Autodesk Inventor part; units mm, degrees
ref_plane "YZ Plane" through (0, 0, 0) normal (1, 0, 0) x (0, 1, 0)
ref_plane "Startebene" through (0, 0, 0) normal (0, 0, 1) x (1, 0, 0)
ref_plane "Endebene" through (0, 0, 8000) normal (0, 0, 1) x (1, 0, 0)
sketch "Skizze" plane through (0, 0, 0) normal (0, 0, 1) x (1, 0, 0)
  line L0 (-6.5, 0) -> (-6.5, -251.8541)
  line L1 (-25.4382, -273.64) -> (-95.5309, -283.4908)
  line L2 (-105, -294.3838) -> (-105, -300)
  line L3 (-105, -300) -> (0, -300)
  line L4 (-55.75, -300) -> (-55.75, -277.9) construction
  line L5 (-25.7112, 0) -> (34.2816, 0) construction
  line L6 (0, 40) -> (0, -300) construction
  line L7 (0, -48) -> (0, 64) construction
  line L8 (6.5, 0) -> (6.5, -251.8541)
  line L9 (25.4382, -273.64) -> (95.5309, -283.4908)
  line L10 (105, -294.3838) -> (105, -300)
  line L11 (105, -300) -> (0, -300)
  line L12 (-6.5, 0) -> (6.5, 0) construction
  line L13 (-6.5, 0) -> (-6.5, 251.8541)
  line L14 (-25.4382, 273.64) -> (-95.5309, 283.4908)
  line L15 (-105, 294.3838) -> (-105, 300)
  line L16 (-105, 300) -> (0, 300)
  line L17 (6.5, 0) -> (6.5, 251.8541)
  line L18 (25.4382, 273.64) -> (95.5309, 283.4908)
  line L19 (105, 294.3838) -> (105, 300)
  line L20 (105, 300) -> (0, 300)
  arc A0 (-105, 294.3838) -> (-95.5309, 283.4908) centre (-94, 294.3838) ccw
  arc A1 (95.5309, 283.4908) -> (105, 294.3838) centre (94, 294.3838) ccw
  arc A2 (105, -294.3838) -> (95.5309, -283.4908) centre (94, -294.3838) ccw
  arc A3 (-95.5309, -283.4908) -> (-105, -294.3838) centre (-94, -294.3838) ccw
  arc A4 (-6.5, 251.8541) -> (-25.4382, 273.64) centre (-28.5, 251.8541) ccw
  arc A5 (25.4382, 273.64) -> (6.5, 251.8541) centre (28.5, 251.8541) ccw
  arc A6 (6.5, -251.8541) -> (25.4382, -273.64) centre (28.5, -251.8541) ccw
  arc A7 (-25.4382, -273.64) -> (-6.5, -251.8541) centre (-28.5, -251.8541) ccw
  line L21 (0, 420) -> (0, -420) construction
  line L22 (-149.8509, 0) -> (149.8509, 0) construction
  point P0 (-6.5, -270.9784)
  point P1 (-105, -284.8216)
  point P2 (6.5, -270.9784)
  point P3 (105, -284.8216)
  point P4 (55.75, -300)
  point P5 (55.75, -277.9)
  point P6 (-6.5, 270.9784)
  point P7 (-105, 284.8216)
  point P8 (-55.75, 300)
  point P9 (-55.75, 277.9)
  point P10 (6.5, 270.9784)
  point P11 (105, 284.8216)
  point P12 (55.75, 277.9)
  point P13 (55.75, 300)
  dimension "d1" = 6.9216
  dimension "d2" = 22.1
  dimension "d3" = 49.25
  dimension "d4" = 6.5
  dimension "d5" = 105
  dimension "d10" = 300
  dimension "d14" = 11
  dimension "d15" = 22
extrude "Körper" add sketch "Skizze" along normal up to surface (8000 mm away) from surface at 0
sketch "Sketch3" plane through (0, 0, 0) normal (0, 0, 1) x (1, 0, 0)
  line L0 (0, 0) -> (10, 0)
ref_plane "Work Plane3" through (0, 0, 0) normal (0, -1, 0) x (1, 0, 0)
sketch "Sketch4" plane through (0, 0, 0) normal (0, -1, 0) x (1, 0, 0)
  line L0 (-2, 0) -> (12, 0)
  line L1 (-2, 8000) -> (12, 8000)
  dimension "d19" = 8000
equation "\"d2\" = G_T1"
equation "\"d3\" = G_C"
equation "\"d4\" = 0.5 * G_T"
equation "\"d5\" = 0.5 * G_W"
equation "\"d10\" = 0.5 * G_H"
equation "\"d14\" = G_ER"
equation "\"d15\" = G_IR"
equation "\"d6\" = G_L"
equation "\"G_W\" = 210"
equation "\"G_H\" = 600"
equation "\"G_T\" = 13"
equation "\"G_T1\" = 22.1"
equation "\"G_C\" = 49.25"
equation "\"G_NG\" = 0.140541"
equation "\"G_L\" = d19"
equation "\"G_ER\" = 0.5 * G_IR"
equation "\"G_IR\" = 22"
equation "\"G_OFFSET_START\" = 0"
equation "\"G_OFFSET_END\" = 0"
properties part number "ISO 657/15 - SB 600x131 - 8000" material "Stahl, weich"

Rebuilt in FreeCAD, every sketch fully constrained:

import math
import FreeCAD as App
import Part
import Sketcher
from FreeCAD import Vector
Q = App.Units.Quantity

doc = App.newDocument("Part")
body = doc.addObject("PartDesign::Body", "Body")

# Sketch on XY plane
sketch1 = body.newObject("Sketcher::SketchObject", "Sketch")
sketch1.AttachmentSupport = (doc.getObject("XY_Plane"), [""])
sketch1.MapMode = "FlatFace"
sketch1.addGeometry(Part.LineSegment(Vector(-6, 252, 0), Vector(-6, -252, 0)), False)
sketch1.addGeometry(Part.ArcOfCircle(Part.Circle(Vector(-28, -252, 0), Vector(0, 0, 1), 22), math.radians(-82), math.radians(0)), False)
sketch1.addGeometry(Part.LineSegment(Vector(-25, -274, 0), Vector(-96, -283, 0)), False)
sketch1.addGeometry(Part.ArcOfCircle(Part.Circle(Vector(-94, -294, 0), Vector(0, 0, 1), 11), math.radians(98), math.radians(180)), False)
sketch1.addGeometry(Part.LineSegment(Vector(-105, -294, 0), Vector(-105, -300, 0)), False)
sketch1.addGeometry(Part.LineSegment(Vector(-105, -300, 0), Vector(105, -300, 0)), False)
sketch1.addGeometry(Part.LineSegment(Vector(105, -300, 0), Vector(105, -294, 0)), False)
sketch1.addGeometry(Part.ArcOfCircle(Part.Circle(Vector(94, -294, 0), Vector(0, 0, 1), 11), math.radians(0), math.radians(82)), False)
sketch1.addGeometry(Part.LineSegment(Vector(96, -283, 0), Vector(25, -274, 0)), False)
sketch1.addGeometry(Part.ArcOfCircle(Part.Circle(Vector(28, -252, 0), Vector(0, 0, 1), 22), math.radians(180), math.radians(262)), False)
sketch1.addGeometry(Part.LineSegment(Vector(6, -252, 0), Vector(6, 252, 0)), False)
sketch1.addGeometry(Part.ArcOfCircle(Part.Circle(Vector(28, 252, 0), Vector(0, 0, 1), 22), math.radians(98), math.radians(180)), False)
sketch1.addGeometry(Part.LineSegment(Vector(25, 274, 0), Vector(96, 283, 0)), False)
sketch1.addGeometry(Part.ArcOfCircle(Part.Circle(Vector(94, 294, 0), Vector(0, 0, 1), 11), math.radians(-82), math.radians(0)), False)
sketch1.addGeometry(Part.LineSegment(Vector(105, 294, 0), Vector(105, 300, 0)), False)
sketch1.addGeometry(Part.LineSegment(Vector(105, 300, 0), Vector(-105, 300, 0)), False)
sketch1.addGeometry(Part.LineSegment(Vector(-105, 300, 0), Vector(-105, 294, 0)), False)
sketch1.addGeometry(Part.ArcOfCircle(Part.Circle(Vector(-94, 294, 0), Vector(0, 0, 1), 11), math.radians(180), math.radians(262)), False)
sketch1.addGeometry(Part.LineSegment(Vector(-96, 283, 0), Vector(-25, 274, 0)), False)
sketch1.addGeometry(Part.ArcOfCircle(Part.Circle(Vector(-28, 252, 0), Vector(0, 0, 1), 22), math.radians(0), math.radians(82)), False)
sketch1.addConstraint(Sketcher.Constraint("Tangent", 0, 2, 1, 2))
sketch1.addConstraint(Sketcher.Constraint("Tangent", 1, 1, 2, 1))
sketch1.addConstraint(Sketcher.Constraint("Tangent", 2, 2, 3, 1))
sketch1.addConstraint(Sketcher.Constraint("Tangent", 3, 2, 4, 1))
sketch1.addConstraint(Sketcher.Constraint("Coincident", 4, 2, 5, 1))
sketch1.addConstraint(Sketcher.Constraint("Coincident", 5, 2, 6, 1))
sketch1.addConstraint(Sketcher.Constraint("Tangent", 6, 2, 7, 1))
sketch1.addConstraint(Sketcher.Constraint("Tangent", 7, 2, 8, 1))
sketch1.addConstraint(Sketcher.Constraint("Tangent", 8, 2, 9, 2))
sketch1.addConstraint(Sketcher.Constraint("Tangent", 9, 1, 10, 1))
sketch1.addConstraint(Sketcher.Constraint("Tangent", 10, 2, 11, 2))
sketch1.addConstraint(Sketcher.Constraint("Tangent", 11, 1, 12, 1))
sketch1.addConstraint(Sketcher.Constraint("Tangent", 12, 2, 13, 1))
sketch1.addConstraint(Sketcher.Constraint("Tangent", 13, 2, 14, 1))
sketch1.addConstraint(Sketcher.Constraint("Coincident", 14, 2, 15, 1))
sketch1.addConstraint(Sketcher.Constraint("Coincident", 15, 2, 16, 1))
sketch1.addConstraint(Sketcher.Constraint("Tangent", 16, 2, 17, 1))
sketch1.addConstraint(Sketcher.Constraint("Tangent", 17, 2, 18, 1))
sketch1.addConstraint(Sketcher.Constraint("Tangent", 18, 2, 19, 2))
sketch1.addConstraint(Sketcher.Constraint("Tangent", 19, 1, 0, 1))
sketch1.addConstraint(Sketcher.Constraint("Vertical", 0))
sketch1.addConstraint(Sketcher.Constraint("Vertical", 4))
sketch1.addConstraint(Sketcher.Constraint("Horizontal", 5))
sketch1.addConstraint(Sketcher.Constraint("Vertical", 6))
sketch1.addConstraint(Sketcher.Constraint("Vertical", 10))
sketch1.addConstraint(Sketcher.Constraint("Vertical", 14))
sketch1.addConstraint(Sketcher.Constraint("Horizontal", 15))
sketch1.addConstraint(Sketcher.Constraint("Vertical", 16))
sketch1.addConstraint(Sketcher.Constraint("Equal", 3, 7))
sketch1.addConstraint(Sketcher.Constraint("Equal", 1, 9))
sketch1.addConstraint(Sketcher.Constraint("Equal", 9, 11))
sketch1.addConstraint(Sketcher.Constraint("Equal", 7, 13))
sketch1.addConstraint(Sketcher.Constraint("Equal", 13, 17))
sketch1.addConstraint(Sketcher.Constraint("Equal", 11, 19))
sketch1.addConstraint(Sketcher.Constraint("Symmetric", 1, 3, 11, 3, -1, 1))
sketch1.addConstraint(Sketcher.Constraint("Symmetric", 3, 3, 13, 3, -1, 1))
sketch1.addConstraint(Sketcher.Constraint("Symmetric", 7, 3, 17, 3, -1, 1))
sketch1.addConstraint(Sketcher.Constraint("Symmetric", 3, 3, 7, 3, -2))
sketch1.addConstraint(Sketcher.Constraint("Parallel", 8, 18))
sketch1.addConstraint(Sketcher.Constraint("Horizontal", 1, 3, 9, 3))
sketch1.addConstraint(Sketcher.Constraint("Equal", 6, 14))
sketch1.addConstraint(Sketcher.Constraint("Radius", 1, 22.0))
sketch1.addConstraint(Sketcher.Constraint("Radius", 3, 11.0))
sketch1.addConstraint(Sketcher.Constraint("DistanceX", 3, 2, -1, 1, 105.0))
sketch1.addConstraint(Sketcher.Constraint("DistanceY", 4, 2, -1, 1, 300.0))
sketch1.addConstraint(Sketcher.Constraint("DistanceX", 0, 2, -1, 1, 6.5))
sketch1.addConstraint(Sketcher.Constraint("Angle", 2, Q("-172 deg")))
sketch1.addConstraint(Sketcher.Constraint("DistanceY", 1, 1, -1, 1, 273.64))
pad1 = body.newObject("PartDesign::Pad", "Pad")
pad1.Profile = sketch1
pad1.Length = 8000

doc.recompute()
